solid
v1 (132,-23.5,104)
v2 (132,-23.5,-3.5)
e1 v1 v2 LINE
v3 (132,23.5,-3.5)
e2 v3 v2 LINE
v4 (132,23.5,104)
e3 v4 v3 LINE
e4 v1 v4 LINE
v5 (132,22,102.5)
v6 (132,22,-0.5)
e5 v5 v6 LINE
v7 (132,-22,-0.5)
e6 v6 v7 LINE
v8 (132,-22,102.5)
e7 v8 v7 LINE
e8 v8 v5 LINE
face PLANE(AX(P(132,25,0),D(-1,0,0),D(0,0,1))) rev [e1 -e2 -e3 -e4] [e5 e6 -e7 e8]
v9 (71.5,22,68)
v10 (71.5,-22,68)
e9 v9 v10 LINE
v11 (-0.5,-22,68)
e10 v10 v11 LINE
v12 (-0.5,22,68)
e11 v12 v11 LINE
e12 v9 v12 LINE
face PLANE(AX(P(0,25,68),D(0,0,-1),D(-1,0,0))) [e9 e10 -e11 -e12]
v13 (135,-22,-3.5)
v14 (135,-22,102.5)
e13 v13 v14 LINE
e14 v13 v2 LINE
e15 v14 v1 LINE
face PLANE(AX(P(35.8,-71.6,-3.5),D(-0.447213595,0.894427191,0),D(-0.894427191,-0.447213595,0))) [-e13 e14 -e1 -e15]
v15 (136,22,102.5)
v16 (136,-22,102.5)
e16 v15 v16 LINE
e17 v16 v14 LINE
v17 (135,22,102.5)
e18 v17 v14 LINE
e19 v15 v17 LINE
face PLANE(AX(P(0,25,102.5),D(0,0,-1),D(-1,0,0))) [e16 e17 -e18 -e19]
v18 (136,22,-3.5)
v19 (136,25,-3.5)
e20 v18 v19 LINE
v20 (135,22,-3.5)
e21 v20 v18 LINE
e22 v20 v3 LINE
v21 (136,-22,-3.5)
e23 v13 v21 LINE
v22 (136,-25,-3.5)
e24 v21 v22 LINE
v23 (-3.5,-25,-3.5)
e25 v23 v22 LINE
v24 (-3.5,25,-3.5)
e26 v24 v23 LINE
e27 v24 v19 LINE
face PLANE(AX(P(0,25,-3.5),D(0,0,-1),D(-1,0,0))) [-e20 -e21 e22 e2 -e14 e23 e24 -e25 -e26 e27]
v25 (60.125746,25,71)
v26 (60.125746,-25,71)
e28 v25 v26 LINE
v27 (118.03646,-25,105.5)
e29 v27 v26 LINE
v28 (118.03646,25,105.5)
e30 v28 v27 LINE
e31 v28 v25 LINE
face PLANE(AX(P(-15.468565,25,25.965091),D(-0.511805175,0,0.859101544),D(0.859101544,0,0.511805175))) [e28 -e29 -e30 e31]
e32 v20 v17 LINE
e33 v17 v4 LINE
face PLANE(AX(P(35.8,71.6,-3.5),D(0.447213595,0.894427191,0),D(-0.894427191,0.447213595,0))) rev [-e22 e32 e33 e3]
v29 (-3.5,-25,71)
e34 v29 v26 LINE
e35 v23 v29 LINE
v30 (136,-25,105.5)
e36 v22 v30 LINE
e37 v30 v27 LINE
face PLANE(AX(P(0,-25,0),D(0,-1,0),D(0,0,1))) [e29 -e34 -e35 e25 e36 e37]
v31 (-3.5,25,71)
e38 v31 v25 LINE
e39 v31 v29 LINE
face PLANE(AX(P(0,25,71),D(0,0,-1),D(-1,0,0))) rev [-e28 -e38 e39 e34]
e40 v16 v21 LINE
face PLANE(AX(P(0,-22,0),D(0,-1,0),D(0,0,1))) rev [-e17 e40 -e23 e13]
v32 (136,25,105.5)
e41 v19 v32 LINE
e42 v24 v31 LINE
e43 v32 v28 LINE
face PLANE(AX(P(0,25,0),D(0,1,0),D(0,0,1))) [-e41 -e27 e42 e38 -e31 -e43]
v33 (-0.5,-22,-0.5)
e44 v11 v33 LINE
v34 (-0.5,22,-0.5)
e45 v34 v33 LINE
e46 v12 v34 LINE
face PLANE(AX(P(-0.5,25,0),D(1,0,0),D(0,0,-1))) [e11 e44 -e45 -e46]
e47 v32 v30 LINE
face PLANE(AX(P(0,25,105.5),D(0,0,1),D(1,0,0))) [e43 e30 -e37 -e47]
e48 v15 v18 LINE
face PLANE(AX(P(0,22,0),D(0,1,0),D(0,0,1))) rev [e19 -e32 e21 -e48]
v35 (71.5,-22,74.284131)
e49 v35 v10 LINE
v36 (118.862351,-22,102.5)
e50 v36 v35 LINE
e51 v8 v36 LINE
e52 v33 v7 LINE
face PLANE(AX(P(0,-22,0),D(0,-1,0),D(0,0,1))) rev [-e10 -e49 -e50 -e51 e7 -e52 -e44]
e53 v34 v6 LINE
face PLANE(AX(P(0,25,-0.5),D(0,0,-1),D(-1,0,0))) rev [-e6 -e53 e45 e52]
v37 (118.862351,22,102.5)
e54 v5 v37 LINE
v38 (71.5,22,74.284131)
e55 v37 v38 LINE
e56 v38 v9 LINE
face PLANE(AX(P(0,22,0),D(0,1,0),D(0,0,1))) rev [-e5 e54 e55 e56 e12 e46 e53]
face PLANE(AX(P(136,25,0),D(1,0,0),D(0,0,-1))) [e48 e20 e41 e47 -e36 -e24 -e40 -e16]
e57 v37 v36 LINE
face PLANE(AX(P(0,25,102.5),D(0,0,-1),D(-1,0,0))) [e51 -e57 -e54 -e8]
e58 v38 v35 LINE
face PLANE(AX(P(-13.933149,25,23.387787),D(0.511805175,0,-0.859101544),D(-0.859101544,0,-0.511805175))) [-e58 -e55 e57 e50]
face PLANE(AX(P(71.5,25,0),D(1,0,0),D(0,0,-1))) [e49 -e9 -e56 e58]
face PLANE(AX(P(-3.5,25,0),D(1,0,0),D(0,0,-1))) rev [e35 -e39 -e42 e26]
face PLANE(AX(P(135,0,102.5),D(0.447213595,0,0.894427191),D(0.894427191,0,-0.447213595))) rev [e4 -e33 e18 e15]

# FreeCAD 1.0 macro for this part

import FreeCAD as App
import Part
import Sketcher
from FreeCAD import Vector
Q = App.Units.Quantity

doc = App.newDocument("Part")
body = doc.addObject("PartDesign::Body", "Body")

# Sketch on XZ plane
sketch1 = body.newObject("Sketcher::SketchObject", "Sketch")
sketch1.AttachmentSupport = (doc.getObject("XZ_Plane"), [""])
sketch1.MapMode = "FlatFace"
sketch1.addGeometry([
    Part.LineSegment(Vector(118.862351, 102.5, 0), Vector(71.5, 74.284131, 0)),  # 0
    Part.LineSegment(Vector(71.5, 74.284131, 0), Vector(71.5, 68, 0)),  # 1
    Part.LineSegment(Vector(71.5, 68, 0), Vector(-0.5, 68, 0)),  # 2
    Part.LineSegment(Vector(-0.5, 68, 0), Vector(-0.5, -0.5, 0)),  # 3
    Part.LineSegment(Vector(-0.5, -0.5, 0), Vector(132, -0.5, 0)),  # 4
    Part.LineSegment(Vector(132, -0.5, 0), Vector(132, -3.5, 0)),  # 5
    Part.LineSegment(Vector(132, -3.5, 0), Vector(-3.5, -3.5, 0)),  # 6
    Part.LineSegment(Vector(-3.5, -3.5, 0), Vector(-3.5, 71, 0)),  # 7
    Part.LineSegment(Vector(-3.5, 71, 0), Vector(60.125746, 71, 0)),  # 8
    Part.LineSegment(Vector(60.125746, 71, 0), Vector(68.5, 75.988917, 0)),  # 9
    Part.LineSegment(Vector(68.5, 75.988917, 0), Vector(118.03646, 105.5, 0)),  # 10
    Part.LineSegment(Vector(118.03646, 105.5, 0), Vector(136, 105.5, 0)),  # 11
    Part.LineSegment(Vector(136, 105.5, 0), Vector(136, 102.5, 0)),  # 12
    Part.LineSegment(Vector(136, 102.5, 0), Vector(118.862351, 102.5, 0)),  # 13
], False)
sketch1.addConstraint([
    Sketcher.Constraint("Coincident", 0, 2, 1, 1),
    Sketcher.Constraint("Coincident", 1, 2, 2, 1),
    Sketcher.Constraint("Coincident", 2, 2, 3, 1),
    Sketcher.Constraint("Coincident", 3, 2, 4, 1),
    Sketcher.Constraint("Coincident", 4, 2, 5, 1),
    Sketcher.Constraint("Coincident", 5, 2, 6, 1),
    Sketcher.Constraint("Coincident", 6, 2, 7, 1),
    Sketcher.Constraint("Coincident", 7, 2, 8, 1),
    Sketcher.Constraint("Coincident", 8, 2, 9, 1),
    Sketcher.Constraint("Coincident", 9, 2, 10, 1),
    Sketcher.Constraint("Coincident", 10, 2, 11, 1),
    Sketcher.Constraint("Coincident", 11, 2, 12, 1),
    Sketcher.Constraint("Coincident", 12, 2, 13, 1),
    Sketcher.Constraint("Coincident", 13, 2, 0, 1),
    Sketcher.Constraint("Vertical", 1),
    Sketcher.Constraint("Horizontal", 2),
    Sketcher.Constraint("Vertical", 3),
    Sketcher.Constraint("Horizontal", 4),
    Sketcher.Constraint("Vertical", 5),
    Sketcher.Constraint("Horizontal", 6),
    Sketcher.Constraint("Vertical", 7),
    Sketcher.Constraint("Horizontal", 8),
    Sketcher.Constraint("Horizontal", 11),
    Sketcher.Constraint("Vertical", 12),
    Sketcher.Constraint("Horizontal", 13),
    Sketcher.Constraint("Parallel", 0, 9),
    Sketcher.Constraint("Parallel", 9, 10),
    Sketcher.Constraint("Equal", 5, 12),
    Sketcher.Constraint("DistanceX", 2, 2, 2, 1, Q("72 mm")),
    Sketcher.Constraint("DistanceY", 5, 2, 5, 1, Q("3 mm")),
    Sketcher.Constraint("DistanceX", 4, 1, 4, 2, Q("132.5 mm")),
    Sketcher.Constraint("DistanceX", 6, 2, 6, 1, Q("135.5 mm")),
    Sketcher.Constraint("DistanceY", 3, 2, 3, 1, Q("68.5 mm")),
    Sketcher.Constraint("DistanceY", 7, 1, 7, 2, Q("74.5 mm")),
    Sketcher.Constraint("DistanceY", -1, 1, 1, 2, Q("68 mm")),
    Sketcher.Constraint("DistanceX", -1, 1, 4, 2, Q("132 mm")),
    Sketcher.Constraint("DistanceX", -1, 1, 11, 2, Q("136 mm")),
    Sketcher.Constraint("DistanceX", 9, 2, 0, 2, Q("3 mm")),
    Sketcher.Constraint("DistanceY", 4, 2, 10, 2, Q("106 mm")),
    Sketcher.Constraint("DistanceX", 11, 1, 11, 2, Q("17.96354 mm")),
    Sketcher.Constraint("DistanceX", 13, 2, 13, 1, Q("17.137649 mm")),
    Sketcher.Constraint("DistanceY", 1, 2, 1, 1, Q("6.284131 mm")),
])
pad1 = body.newObject("PartDesign::Pad", "Pad")
pad1.Profile = sketch1
pad1.Length = 25
pad1.Reversed = True

# Sketch on XZ plane
sketch2 = body.newObject("Sketcher::SketchObject", "Sketch001")
sketch2.AttachmentSupport = (doc.getObject("XZ_Plane"), [""])
sketch2.MapMode = "FlatFace"
sketch2.AttachmentOffset = App.Placement(Vector(0, 0, -25), App.Rotation())
sketch2.addGeometry([
    Part.LineSegment(Vector(118.862351, 102.5, 0), Vector(136, 102.5, 0)),  # 0
    Part.LineSegment(Vector(136, 102.5, 0), Vector(136, -3.5, 0)),  # 1
    Part.LineSegment(Vector(136, -3.5, 0), Vector(132, -3.5, 0)),  # 2
    Part.LineSegment(Vector(132, -3.5, 0), Vector(132, -0.5, 0)),  # 3
    Part.LineSegment(Vector(132, -0.5, 0), Vector(-0.5, -0.5, 0)),  # 4
    Part.LineSegment(Vector(-0.5, -0.5, 0), Vector(-0.5, 68, 0)),  # 5
    Part.LineSegment(Vector(-0.5, 68, 0), Vector(71.5, 68, 0)),  # 6
    Part.LineSegment(Vector(71.5, 68, 0), Vector(71.5, 74.284131, 0)),  # 7
    Part.LineSegment(Vector(71.5, 74.284131, 0), Vector(118.862351, 102.5, 0)),  # 8
], False)
sketch2.addConstraint([
    Sketcher.Constraint("Coincident", 0, 2, 1, 1),
    Sketcher.Constraint("Coincident", 1, 2, 2, 1),
    Sketcher.Constraint("Coincident", 2, 2, 3, 1),
    Sketcher.Constraint("Coincident", 3, 2, 4, 1),
    Sketcher.Constraint("Coincident", 4, 2, 5, 1),
    Sketcher.Constraint("Coincident", 5, 2, 6, 1),
    Sketcher.Constraint("Coincident", 6, 2, 7, 1),
    Sketcher.Constraint("Coincident", 7, 2, 8, 1),
    Sketcher.Constraint("Coincident", 8, 2, 0, 1),
    Sketcher.Constraint("Horizontal", 0),
    Sketcher.Constraint("Vertical", 1),
    Sketcher.Constraint("Horizontal", 2),
    Sketcher.Constraint("Vertical", 3),
    Sketcher.Constraint("Horizontal", 4),
    Sketcher.Constraint("Vertical", 5),
    Sketcher.Constraint("Horizontal", 6),
    Sketcher.Constraint("Vertical", 7),
    Sketcher.Constraint("DistanceX", 2, 2, 2, 1, Q("4 mm")),
    Sketcher.Constraint("DistanceX", 6, 1, 6, 2, Q("72 mm")),
    Sketcher.Constraint("DistanceY", 1, 2, 1, 1, Q("106 mm")),
    Sketcher.Constraint("DistanceY", 3, 1, 3, 2, Q("3 mm")),
    Sketcher.Constraint("DistanceX", 4, 2, 4, 1, Q("132.5 mm")),
    Sketcher.Constraint("DistanceY", 5, 1, 5, 2, Q("68.5 mm")),
    Sketcher.Constraint("DistanceX", -1, 1, 0, 2, Q("136 mm")),
    Sketcher.Constraint("DistanceY", -1, 1, 5, 2, Q("68 mm")),
    Sketcher.Constraint("DistanceX", 0, 1, 0, 2, Q("17.137649 mm")),
    Sketcher.Constraint("DistanceY", 7, 1, 7, 2, Q("6.284131 mm")),
])
pad2 = body.newObject("PartDesign::Pad", "Pad001")
pad2.Profile = sketch2
pad2.Length = 3

# Sketch on XY plane
sketch3 = body.newObject("Sketcher::SketchObject", "Sketch002")
sketch3.AttachmentSupport = (doc.getObject("XY_Plane"), [""])
sketch3.MapMode = "FlatFace"
sketch3.AttachmentOffset = App.Placement(Vector(0, 0, 102.5), App.Rotation())
sketch3.addGeometry([
    Part.LineSegment(Vector(135, 22, 0), Vector(135, 0, 0)),
    Part.LineSegment(Vector(135, 0, 0), Vector(132, 0, 0)),
    Part.LineSegment(Vector(132, 0, 0), Vector(132, 22, 0)),
    Part.LineSegment(Vector(132, 22, 0), Vector(135, 22, 0)),
], False)
sketch3.addConstraint([
    Sketcher.Constraint("Coincident", 0, 2, 1, 1),
    Sketcher.Constraint("Coincident", 1, 2, 2, 1),
    Sketcher.Constraint("Coincident", 2, 2, 3, 1),
    Sketcher.Constraint("Coincident", 3, 2, 0, 1),
    Sketcher.Constraint("Vertical", 0),
    Sketcher.Constraint("Horizontal", 1),
    Sketcher.Constraint("Vertical", 2),
    Sketcher.Constraint("Horizontal", 3),
    Sketcher.Constraint("PointOnObject", 0, 2, -1),
    Sketcher.Constraint("DistanceX", 1, 2, 1, 1, Q("3 mm")),
    Sketcher.Constraint("DistanceY", 0, 2, 0, 1, Q("22 mm")),
    Sketcher.Constraint("DistanceX", -1, 1, 0, 2, Q("135 mm")),
])
pocket1 = body.newObject("PartDesign::Pocket", "Pocket")
pocket1.Profile = sketch3
pocket1.Length = 1.5
pocket1.Reversed = True

# Sketch on XZ plane
sketch4 = body.newObject("Sketcher::SketchObject", "Sketch003")
sketch4.AttachmentSupport = (doc.getObject("XZ_Plane"), [""])
sketch4.MapMode = "FlatFace"
sketch4.AttachmentOffset = App.Placement(Vector(0, 0, -22), App.Rotation())
sketch4.addGeometry([
    Part.LineSegment(Vector(132, 104, 0), Vector(132, -3.5, 0)),
    Part.LineSegment(Vector(132, -3.5, 0), Vector(135, -3.5, 0)),
    Part.LineSegment(Vector(135, -3.5, 0), Vector(135, 104, 0)),
    Part.LineSegment(Vector(135, 104, 0), Vector(132, 104, 0)),
], False)
sketch4.addConstraint([
    Sketcher.Constraint("Coincident", 0, 2, 1, 1),
    Sketcher.Constraint("Coincident", 1, 2, 2, 1),
    Sketcher.Constraint("Coincident", 2, 2, 3, 1),
    Sketcher.Constraint("Coincident", 3, 2, 0, 1),
    Sketcher.Constraint("Vertical", 0),
    Sketcher.Constraint("Horizontal", 1),
    Sketcher.Constraint("Vertical", 2),
    Sketcher.Constraint("Horizontal", 3),
    Sketcher.Constraint("DistanceX", 1, 1, 1, 2, Q("3 mm")),
    Sketcher.Constraint("DistanceY", 0, 2, 0, 1, Q("107.5 mm")),
    Sketcher.Constraint("DistanceX", -1, 1, 0, 2, Q("132 mm")),
    Sketcher.Constraint("DistanceY", -1, 1, 2, 2, Q("104 mm")),
])
pocket2 = body.newObject("PartDesign::Pocket", "Pocket001")
pocket2.Profile = sketch4
pocket2.Length = 1.5

# Sketch on XZ plane
sketch5 = body.newObject("Sketcher::SketchObject", "Sketch004")
sketch5.AttachmentSupport = (doc.getObject("XZ_Plane"), [""])
sketch5.MapMode = "FlatFace"
sketch5.AttachmentOffset = App.Placement(Vector(0, 0, -23.5), App.Rotation())
sketch5.addGeometry([
    Part.LineSegment(Vector(132, 104, 0), Vector(135, 102.5, 0)),
    Part.LineSegment(Vector(135, 102.5, 0), Vector(135, 104, 0)),
    Part.LineSegment(Vector(135, 104, 0), Vector(132, 104, 0)),
], False)
sketch5.addConstraint([
    Sketcher.Constraint("Coincident", 0, 2, 1, 1),
    Sketcher.Constraint("Coincident", 1, 2, 2, 1),
    Sketcher.Constraint("Coincident", 2, 2, 0, 1),
    Sketcher.Constraint("Vertical", 1),
    Sketcher.Constraint("Horizontal", 2),
    Sketcher.Constraint("DistanceX", 2, 2, 2, 1, Q("3 mm")),
    Sketcher.Constraint("DistanceY", 1, 1, 1, 2, Q("1.5 mm")),
    Sketcher.Constraint("DistanceX", -1, 1, 0, 2, Q("135 mm")),
    Sketcher.Constraint("DistanceY", -1, 1, 1, 2, Q("104 mm")),
])
pad3 = body.newObject("PartDesign::Pad", "Pad002")
pad3.Profile = sketch5
pad3.Length = 23.5

# Sketch on XY plane
sketch6 = body.newObject("Sketcher::SketchObject", "Sketch005")
sketch6.AttachmentSupport = (doc.getObject("XY_Plane"), [""])
sketch6.MapMode = "FlatFace"
sketch6.AttachmentOffset = App.Placement(Vector(0, 0, 105.5), App.Rotation())
sketch6.addGeometry([
    Part.LineSegment(Vector(132, 23.5, 0), Vector(135, 22, 0)),
    Part.LineSegment(Vector(135, 22, 0), Vector(135, 23.5, 0)),
    Part.LineSegment(Vector(135, 23.5, 0), Vector(132, 23.5, 0)),
], False)
sketch6.addConstraint([
    Sketcher.Constraint("Coincident", 0, 2, 1, 1),
    Sketcher.Constraint("Coincident", 1, 2, 2, 1),
    Sketcher.Constraint("Coincident", 2, 2, 0, 1),
    Sketcher.Constraint("Vertical", 1),
    Sketcher.Constraint("Horizontal", 2),
    Sketcher.Constraint("DistanceX", 2, 2, 2, 1, Q("3 mm")),
    Sketcher.Constraint("DistanceY", 1, 1, 1, 2, Q("1.5 mm")),
    Sketcher.Constraint("DistanceX", -1, 1, 0, 2, Q("135 mm")),
    Sketcher.Constraint("DistanceY", -1, 1, 0, 2, Q("22 mm")),
])
pad4 = body.newObject("PartDesign::Pad", "Pad003")
pad4.Profile = sketch6
pad4.Length = 109
pad4.Reversed = True
doc.recompute()

mirrored = body.newObject("PartDesign::Mirrored", "Mirrored")
mirrored.Originals = [pad1, pad2, pocket1, pocket2, pad3, pad4]
mirrored.MirrorPlane = (doc.getObject("XZ_Plane"), [""])
body.Tip = mirrored

doc.recompute()
